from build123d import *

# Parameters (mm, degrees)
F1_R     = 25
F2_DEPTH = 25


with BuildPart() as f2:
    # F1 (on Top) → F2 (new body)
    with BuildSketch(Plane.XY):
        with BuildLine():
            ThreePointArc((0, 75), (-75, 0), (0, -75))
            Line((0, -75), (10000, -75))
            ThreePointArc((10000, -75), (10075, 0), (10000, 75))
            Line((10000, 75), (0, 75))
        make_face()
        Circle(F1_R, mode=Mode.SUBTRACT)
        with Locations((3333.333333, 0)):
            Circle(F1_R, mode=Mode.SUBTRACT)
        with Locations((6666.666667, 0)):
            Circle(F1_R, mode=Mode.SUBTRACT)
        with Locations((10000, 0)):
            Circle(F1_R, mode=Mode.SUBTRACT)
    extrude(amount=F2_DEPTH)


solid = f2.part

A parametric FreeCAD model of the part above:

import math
import FreeCAD as App
import Part
import Sketcher
from FreeCAD import Vector
Q = App.Units.Quantity

doc = App.newDocument("Part")
params = doc.addObject("Spreadsheet::Sheet", "Params")
for row, (alias, value) in enumerate([
    ("sketch1_diameter", "50 mm"),
    ("sketch1_radius", "75 mm"),
    ("sketch1_width", "10000 mm"),
    ("pad1_length", "25 mm"),
], start=1):
    params.set(f"A{row}", alias)
    params.set(f"B{row}", "=" + value)
    params.setAlias(f"B{row}", alias)

body = doc.addObject("PartDesign::Body", "Body")

# Sketch on XY plane
sketch1 = body.newObject("Sketcher::SketchObject", "Sketch")
sketch1.AttachmentSupport = (doc.getObject("XY_Plane"), [""])
sketch1.MapMode = "FlatFace"
sketch1.addGeometry(Part.ArcOfCircle(Part.Circle(Vector(0, 0, 0), Vector(0, 0, 1), 75), math.radians(90), math.radians(270)), False)
sketch1.addGeometry(Part.LineSegment(Vector(0, -75, 0), Vector(10000, -75, 0)), False)
sketch1.addGeometry(Part.ArcOfCircle(Part.Circle(Vector(10000, 0, 0), Vector(0, 0, 1), 75), math.radians(-90), math.radians(90)), False)
sketch1.addGeometry(Part.LineSegment(Vector(10000, 75, 0), Vector(0, 75, 0)), False)
sketch1.addGeometry(Part.Circle(Vector(0, 0, 0), Vector(0, 0, 1), 25), False)
sketch1.addGeometry(Part.Circle(Vector(3333.333333, 0, 0), Vector(0, 0, 1), 25), False)
sketch1.addGeometry(Part.Circle(Vector(6666.666667, 0, 0), Vector(0, 0, 1), 25), False)
sketch1.addGeometry(Part.Circle(Vector(10000, 0, 0), Vector(0, 0, 1), 25), False)
sketch1.addConstraint(Sketcher.Constraint("Tangent", 0, 2, 1, 1))
sketch1.addConstraint(Sketcher.Constraint("Tangent", 1, 2, 2, 1))
sketch1.addConstraint(Sketcher.Constraint("Tangent", 2, 2, 3, 1))
sketch1.addConstraint(Sketcher.Constraint("Tangent", 3, 2, 0, 1))
sketch1.addConstraint(Sketcher.Constraint("Horizontal", 1))
sketch1.addConstraint(Sketcher.Constraint("Horizontal", 3))
sketch1.addConstraint(Sketcher.Constraint("Coincident", 0, 3, -1, 1))
sketch1.addConstraint(Sketcher.Constraint("Coincident", 4, 3, -1, 1))
sketch1.addConstraint(Sketcher.Constraint("Coincident", 7, 3, 2, 3))
sketch1.addConstraint(Sketcher.Constraint("Equal", 4, 5))
sketch1.addConstraint(Sketcher.Constraint("Equal", 5, 6))
sketch1.addConstraint(Sketcher.Constraint("Equal", 6, 7))
sketch1.addConstraint(Sketcher.Constraint("PointOnObject", 5, 3, -1))
sketch1.addConstraint(Sketcher.Constraint("PointOnObject", 6, 3, -1))
sketch1.addConstraint(Sketcher.Constraint("Diameter", 4, Q("50 mm")))
sketch1.addConstraint(Sketcher.Constraint("Radius", 0, Q("75 mm")))
sketch1.addConstraint(Sketcher.Constraint("DistanceX", 1, 1, 1, 2, Q("10000 mm")))
sketch1.addConstraint(Sketcher.Constraint("DistanceX", -1, 1, 5, 3, Q("3333.333333 mm")))
sketch1.addConstraint(Sketcher.Constraint("DistanceX", -1, 1, 6, 3, Q("6666.666667 mm")))
sketch1.setExpression("Constraints[14]", "Params.sketch1_diameter")
sketch1.setExpression("Constraints[15]", "Params.sketch1_radius")
sketch1.setExpression("Constraints[16]", "Params.sketch1_width")
pad1 = body.newObject("PartDesign::Pad", "Pad")
pad1.Profile = sketch1
pad1.setExpression("Length", "Params.pad1_length")

doc.recompute()
